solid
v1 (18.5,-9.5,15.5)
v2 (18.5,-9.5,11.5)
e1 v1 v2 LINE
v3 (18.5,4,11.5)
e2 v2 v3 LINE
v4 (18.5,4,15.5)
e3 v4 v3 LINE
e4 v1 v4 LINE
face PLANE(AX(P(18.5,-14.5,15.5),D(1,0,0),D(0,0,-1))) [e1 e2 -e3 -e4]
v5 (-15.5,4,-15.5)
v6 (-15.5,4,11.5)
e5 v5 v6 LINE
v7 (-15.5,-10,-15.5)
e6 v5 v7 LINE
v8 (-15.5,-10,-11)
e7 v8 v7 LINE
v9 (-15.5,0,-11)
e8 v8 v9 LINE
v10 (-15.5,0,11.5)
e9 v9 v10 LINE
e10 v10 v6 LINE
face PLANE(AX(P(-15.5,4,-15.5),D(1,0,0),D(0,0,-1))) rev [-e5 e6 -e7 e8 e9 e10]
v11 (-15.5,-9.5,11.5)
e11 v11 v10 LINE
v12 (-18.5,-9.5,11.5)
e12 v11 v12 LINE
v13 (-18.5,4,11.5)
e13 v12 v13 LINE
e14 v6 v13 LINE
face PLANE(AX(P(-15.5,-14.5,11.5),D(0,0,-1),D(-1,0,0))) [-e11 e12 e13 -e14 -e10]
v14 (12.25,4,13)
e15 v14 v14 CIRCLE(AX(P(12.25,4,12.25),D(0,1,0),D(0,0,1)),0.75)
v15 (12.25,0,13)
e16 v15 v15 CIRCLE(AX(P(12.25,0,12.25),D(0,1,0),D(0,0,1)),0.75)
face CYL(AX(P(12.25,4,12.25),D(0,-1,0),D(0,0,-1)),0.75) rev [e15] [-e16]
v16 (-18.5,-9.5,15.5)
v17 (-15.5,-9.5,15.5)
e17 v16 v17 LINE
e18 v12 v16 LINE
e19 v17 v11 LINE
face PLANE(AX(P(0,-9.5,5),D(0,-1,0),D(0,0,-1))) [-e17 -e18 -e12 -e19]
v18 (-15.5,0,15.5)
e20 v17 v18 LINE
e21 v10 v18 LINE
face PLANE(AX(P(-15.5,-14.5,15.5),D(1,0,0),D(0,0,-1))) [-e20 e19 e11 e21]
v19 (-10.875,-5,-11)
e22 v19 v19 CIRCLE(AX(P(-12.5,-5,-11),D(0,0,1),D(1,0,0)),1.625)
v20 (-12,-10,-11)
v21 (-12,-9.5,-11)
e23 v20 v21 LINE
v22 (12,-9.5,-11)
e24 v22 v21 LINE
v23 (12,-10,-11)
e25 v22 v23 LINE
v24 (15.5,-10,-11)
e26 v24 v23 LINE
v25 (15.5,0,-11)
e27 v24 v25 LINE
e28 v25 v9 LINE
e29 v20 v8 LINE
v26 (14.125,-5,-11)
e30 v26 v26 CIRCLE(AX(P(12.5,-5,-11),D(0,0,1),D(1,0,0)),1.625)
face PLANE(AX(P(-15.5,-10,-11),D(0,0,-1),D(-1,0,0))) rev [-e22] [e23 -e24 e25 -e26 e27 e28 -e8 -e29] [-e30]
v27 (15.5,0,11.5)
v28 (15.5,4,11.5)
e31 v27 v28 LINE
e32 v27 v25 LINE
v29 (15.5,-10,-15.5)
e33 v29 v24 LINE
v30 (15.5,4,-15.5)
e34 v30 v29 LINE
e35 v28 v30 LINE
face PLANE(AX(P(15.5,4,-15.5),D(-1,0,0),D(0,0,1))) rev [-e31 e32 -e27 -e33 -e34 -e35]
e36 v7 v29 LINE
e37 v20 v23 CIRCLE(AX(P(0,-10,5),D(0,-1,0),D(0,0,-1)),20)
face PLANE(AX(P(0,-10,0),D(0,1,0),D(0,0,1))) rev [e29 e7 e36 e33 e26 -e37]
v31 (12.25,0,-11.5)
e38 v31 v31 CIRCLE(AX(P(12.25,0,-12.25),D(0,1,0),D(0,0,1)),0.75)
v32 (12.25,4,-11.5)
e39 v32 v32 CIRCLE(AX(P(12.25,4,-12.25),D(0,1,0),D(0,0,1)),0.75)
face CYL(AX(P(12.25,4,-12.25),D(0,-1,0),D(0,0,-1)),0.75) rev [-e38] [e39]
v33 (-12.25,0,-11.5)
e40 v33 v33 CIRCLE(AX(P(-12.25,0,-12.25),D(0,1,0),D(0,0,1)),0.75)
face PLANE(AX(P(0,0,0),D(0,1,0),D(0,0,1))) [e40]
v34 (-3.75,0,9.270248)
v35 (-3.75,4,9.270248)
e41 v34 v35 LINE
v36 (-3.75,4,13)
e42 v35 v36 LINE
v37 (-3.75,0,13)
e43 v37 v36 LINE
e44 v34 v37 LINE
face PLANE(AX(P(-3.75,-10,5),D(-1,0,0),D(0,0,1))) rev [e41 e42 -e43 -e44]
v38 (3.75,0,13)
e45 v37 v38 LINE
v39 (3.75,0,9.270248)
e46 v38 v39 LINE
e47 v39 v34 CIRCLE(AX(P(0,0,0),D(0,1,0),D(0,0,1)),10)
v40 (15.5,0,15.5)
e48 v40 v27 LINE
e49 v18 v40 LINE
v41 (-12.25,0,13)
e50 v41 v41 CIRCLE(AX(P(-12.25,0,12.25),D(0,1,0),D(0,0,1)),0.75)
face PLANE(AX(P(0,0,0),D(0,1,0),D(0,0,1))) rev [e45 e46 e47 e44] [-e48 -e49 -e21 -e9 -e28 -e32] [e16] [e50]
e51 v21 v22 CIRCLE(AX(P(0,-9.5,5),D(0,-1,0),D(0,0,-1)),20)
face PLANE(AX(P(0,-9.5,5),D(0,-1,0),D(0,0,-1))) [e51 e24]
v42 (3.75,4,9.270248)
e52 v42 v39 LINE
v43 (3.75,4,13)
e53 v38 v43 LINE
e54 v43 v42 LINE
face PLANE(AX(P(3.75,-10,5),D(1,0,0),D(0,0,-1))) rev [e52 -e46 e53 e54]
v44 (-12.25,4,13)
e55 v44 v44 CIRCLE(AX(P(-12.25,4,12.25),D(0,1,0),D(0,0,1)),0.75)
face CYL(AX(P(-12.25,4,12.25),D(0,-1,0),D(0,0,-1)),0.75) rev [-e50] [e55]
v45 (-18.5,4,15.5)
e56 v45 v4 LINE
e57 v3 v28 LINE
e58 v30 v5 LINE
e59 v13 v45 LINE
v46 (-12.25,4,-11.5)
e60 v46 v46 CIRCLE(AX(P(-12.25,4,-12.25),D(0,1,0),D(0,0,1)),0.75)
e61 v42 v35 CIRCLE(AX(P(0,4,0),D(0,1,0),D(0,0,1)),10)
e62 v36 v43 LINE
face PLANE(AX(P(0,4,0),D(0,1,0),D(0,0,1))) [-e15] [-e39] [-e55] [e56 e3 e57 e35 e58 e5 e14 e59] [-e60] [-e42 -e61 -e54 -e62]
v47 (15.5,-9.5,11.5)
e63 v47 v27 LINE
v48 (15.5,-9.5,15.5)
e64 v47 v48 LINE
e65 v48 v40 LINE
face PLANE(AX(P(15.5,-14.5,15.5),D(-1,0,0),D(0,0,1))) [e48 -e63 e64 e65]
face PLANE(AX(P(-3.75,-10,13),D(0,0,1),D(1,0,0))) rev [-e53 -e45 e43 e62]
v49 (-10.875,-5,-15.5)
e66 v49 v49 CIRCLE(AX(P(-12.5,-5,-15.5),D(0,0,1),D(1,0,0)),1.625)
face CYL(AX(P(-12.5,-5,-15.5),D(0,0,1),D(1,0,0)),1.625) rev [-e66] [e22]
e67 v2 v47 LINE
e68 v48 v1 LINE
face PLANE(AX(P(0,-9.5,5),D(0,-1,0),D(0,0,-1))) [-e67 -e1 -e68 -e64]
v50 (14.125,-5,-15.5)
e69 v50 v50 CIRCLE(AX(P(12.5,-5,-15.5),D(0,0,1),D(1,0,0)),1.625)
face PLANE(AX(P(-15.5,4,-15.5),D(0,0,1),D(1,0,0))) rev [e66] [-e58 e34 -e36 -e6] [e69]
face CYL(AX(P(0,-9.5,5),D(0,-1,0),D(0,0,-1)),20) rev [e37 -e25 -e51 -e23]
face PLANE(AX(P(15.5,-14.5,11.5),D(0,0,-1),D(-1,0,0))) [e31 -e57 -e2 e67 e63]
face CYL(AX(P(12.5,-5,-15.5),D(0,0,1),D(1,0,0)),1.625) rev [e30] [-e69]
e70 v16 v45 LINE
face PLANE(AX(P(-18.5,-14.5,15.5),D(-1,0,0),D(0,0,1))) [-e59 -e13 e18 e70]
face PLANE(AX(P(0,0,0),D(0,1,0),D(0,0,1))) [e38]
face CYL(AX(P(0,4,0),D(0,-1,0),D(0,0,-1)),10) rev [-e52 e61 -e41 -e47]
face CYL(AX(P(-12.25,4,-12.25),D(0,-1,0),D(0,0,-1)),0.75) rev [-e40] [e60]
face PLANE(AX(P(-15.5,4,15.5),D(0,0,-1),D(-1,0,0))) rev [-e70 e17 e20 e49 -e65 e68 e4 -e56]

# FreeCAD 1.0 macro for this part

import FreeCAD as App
import Part
import Sketcher
from FreeCAD import Vector
Q = App.Units.Quantity


def add_polygon(sketch, points):
    """Adds a closed chain of lines whose ends are joined by coincident constraints."""
    first, n = sketch.GeometryCount, len(points)
    for a, b in zip(points, points[1:] + points[:1]):
        sketch.addGeometry(Part.LineSegment(App.Vector(*a, 0), App.Vector(*b, 0)), False)
    for i in range(n):
        sketch.addConstraint(Sketcher.Constraint("Coincident", first + i, 2, first + (i + 1) % n, 1))

doc = App.newDocument("Part")
params = doc.addObject("Spreadsheet::Sheet", "Params")
for row, (alias, value) in enumerate([
    ("sketch1_diameter", "20 mm"),
    ("sketch1_diameter2", "1.5 mm"),
    ("sketch1_width", "31 mm"),
    ("pad1_length", "4 mm"),
    ("sketch2_width", "31 mm"),
    ("sketch2_height", "4.5 mm"),
    ("pad2_length", "10 mm"),
    ("sketch3_diameter", "3.25 mm"),
    ("sketch4_height", "8 mm"),
    ("sketch4_width", "7.5 mm"),
    ("sketch5_diameter", "40 mm"),
    ("pocket3_length", "0.5 mm"),
    ("sketch6_width", "3 mm"),
    ("sketch6_height", "4 mm"),
    ("pad3_length", "13.5 mm"),
], start=1):
    params.set(f"A{row}", alias)
    params.set(f"B{row}", "=" + value)
    params.setAlias(f"B{row}", alias)

body = doc.addObject("PartDesign::Body", "Body")

sketch1 = doc.addObject("Sketcher::SketchObject", "Sketch")
body.addObject(sketch1)
sketch1.AttachmentSupport = (doc.XZ_Plane, [""])
sketch1.MapMode = "FlatFace"
add_polygon(sketch1, [(-15.5, -15.5), (-15.5, 15.5), (15.5, 15.5), (15.5, -15.5)])
sketch1.addGeometry(Part.Circle(Vector(-12.25, 12.25, 0), Vector(0, 0, 1), 0.75), False)
sketch1.addGeometry(Part.Circle(Vector(12.25, 12.25, 0), Vector(0, 0, 1), 0.75), False)
sketch1.addGeometry(Part.Circle(Vector(-12.25, -12.25, 0), Vector(0, 0, 1), 0.75), False)
sketch1.addGeometry(Part.Circle(Vector(0, 0, 0), Vector(0, 0, 1), 10), False)
sketch1.addGeometry(Part.Circle(Vector(12.25, -12.25, 0), Vector(0, 0, 1), 0.75), False)
sketch1.addConstraint([
    Sketcher.Constraint("Vertical", 0),
    Sketcher.Constraint("Horizontal", 1),
    Sketcher.Constraint("Vertical", 2),
    Sketcher.Constraint("Horizontal", 3),
    Sketcher.Constraint("Coincident", 7, 3, -1, 1),
    Sketcher.Constraint("Equal", 4, 5),
    Sketcher.Constraint("Equal", 5, 6),
    Sketcher.Constraint("Equal", 6, 8),
    Sketcher.Constraint("Symmetric", 5, 3, 6, 3, -1, 1),
    Sketcher.Constraint("Symmetric", 4, 3, 8, 3, -1, 1),
    Sketcher.Constraint("Symmetric", 0, 2, 2, 2, -1, 1),
    Sketcher.Constraint("Symmetric", 4, 3, 5, 3, -2),
    Sketcher.Constraint("Equal", 3, 0),
    Sketcher.Constraint("Diameter", 7, Q("20 mm")),
    Sketcher.Constraint("Diameter", 4, Q("1.5 mm")),
    Sketcher.Constraint("DistanceX", 1, 1, 1, 2, Q("31 mm")),
    Sketcher.Constraint("DistanceX", 4, 3, 5, 3, Q("24.5 mm")),
    Sketcher.Constraint("DistanceY", 6, 3, 4, 3, Q("24.5 mm")),
])
sketch1.setExpression("Constraints[17]", "Params.sketch1_diameter")
sketch1.setExpression("Constraints[18]", "Params.sketch1_diameter2")
sketch1.setExpression("Constraints[19]", "Params.sketch1_width")
pad1 = doc.addObject("PartDesign::Pad", "Pad")
body.addObject(pad1)
pad1.Profile = sketch1
pad1.setExpression("Length", "Params.pad1_length")
pad1.Reversed = True

sketch2 = doc.addObject("Sketcher::SketchObject", "Sketch001")
body.addObject(sketch2)
sketch2.AttachmentSupport = (doc.XZ_Plane, [""])
sketch2.MapMode = "FlatFace"
add_polygon(sketch2, [(-15.5, -11), (-15.5, -15.5), (15.5, -15.5), (15.5, -11)])
sketch2.addConstraint([
    Sketcher.Constraint("Vertical", 0),
    Sketcher.Constraint("Horizontal", 1),
    Sketcher.Constraint("Vertical", 2),
    Sketcher.Constraint("Horizontal", 3),
    Sketcher.Constraint("DistanceX", 1, 1, 1, 2, Q("31 mm")),
    Sketcher.Constraint("DistanceY", 0, 2, 0, 1, Q("4.5 mm")),
    Sketcher.Constraint("DistanceY", 2, 2, -1, 1, Q("11 mm")),
    Sketcher.Constraint("DistanceX", 0, 2, -1, 1, Q("15.5 mm")),
])
sketch2.setExpression("Constraints[8]", "Params.sketch2_width")
sketch2.setExpression("Constraints[9]", "Params.sketch2_height")
pad2 = doc.addObject("PartDesign::Pad", "Pad001")
body.addObject(pad2)
pad2.Profile = sketch2
pad2.setExpression("Length", "Params.pad2_length")

sketch3 = doc.addObject("Sketcher::SketchObject", "Sketch002")
body.addObject(sketch3)
sketch3.AttachmentSupport = (doc.XY_Plane, [""])
sketch3.MapMode = "FlatFace"
sketch3.AttachmentOffset = App.Placement(Vector(0, 0, -11), App.Rotation())
sketch3.addGeometry([
    Part.Circle(Vector(-12.5, -5, 0), Vector(0, 0, 1), 1.625),
    Part.Circle(Vector(12.5, -5, 0), Vector(0, 0, 1), 1.625),
], False)
sketch3.addConstraint([
    Sketcher.Constraint("Equal", 0, 1),
    Sketcher.Constraint("Symmetric", 0, 3, 1, 3, -2),
    Sketcher.Constraint("Diameter", 0, Q("3.25 mm")),
    Sketcher.Constraint("DistanceY", 0, 3, -1, 1, Q("5 mm")),
    Sketcher.Constraint("DistanceX", 0, 3, 1, 3, Q("25 mm")),
])
sketch3.setExpression("Constraints[2]", "Params.sketch3_diameter")
pocket1 = doc.addObject("PartDesign::Pocket", "Pocket")
body.addObject(pocket1)
pocket1.Profile = sketch3
pocket1.Type = "ThroughAll"

sketch4 = doc.addObject("Sketcher::SketchObject", "Sketch003")
body.addObject(sketch4)
sketch4.AttachmentSupport = (doc.XZ_Plane, [""])
sketch4.MapMode = "FlatFace"
sketch4.AttachmentOffset = App.Placement(Vector(0, 0, -4), App.Rotation())
add_polygon(sketch4, [(-3.75, 5), (-3.75, 13), (3.75, 13), (3.75, 5)])
sketch4.addConstraint([
    Sketcher.Constraint("Vertical", 0),
    Sketcher.Constraint("Horizontal", 1),
    Sketcher.Constraint("Vertical", 2),
    Sketcher.Constraint("Horizontal", 3),
    Sketcher.Constraint("DistanceY", 0, 1, 0, 2, Q("8 mm")),
    Sketcher.Constraint("DistanceX", 1, 1, 1, 2, Q("7.5 mm")),
    Sketcher.Constraint("DistanceY", -1, 1, 0, 2, Q("13 mm")),
    Sketcher.Constraint("DistanceX", 0, 2, -1, 1, Q("3.75 mm")),
])
sketch4.setExpression("Constraints[8]", "Params.sketch4_height")
sketch4.setExpression("Constraints[9]", "Params.sketch4_width")
pocket2 = doc.addObject("PartDesign::Pocket", "Pocket001")
body.addObject(pocket2)
pocket2.Profile = sketch4
pocket2.Type = "ThroughAll"
pocket2.Reversed = True

sketch5 = doc.addObject("Sketcher::SketchObject", "Sketch004")
body.addObject(sketch5)
sketch5.AttachmentSupport = (doc.XZ_Plane, [""])
sketch5.MapMode = "FlatFace"
sketch5.AttachmentOffset = App.Placement(Vector(0, 0, 10), App.Rotation())
sketch5.addGeometry(Part.Circle(Vector(0, 5, 0), Vector(0, 0, 1), 20), False)
sketch5.addConstraint([
    Sketcher.Constraint("PointOnObject", 0, 3, -2),
    Sketcher.Constraint("Diameter", 0, Q("40 mm")),
    Sketcher.Constraint("DistanceY", -1, 1, 0, 3, Q("5 mm")),
])
sketch5.setExpression("Constraints[1]", "Params.sketch5_diameter")
pocket3 = doc.addObject("PartDesign::Pocket", "Pocket002")
body.addObject(pocket3)
pocket3.Profile = sketch5
pocket3.setExpression("Length", "Params.pocket3_length")

sketch6 = doc.addObject("Sketcher::SketchObject", "Sketch005")
body.addObject(sketch6)
sketch6.AttachmentSupport = (doc.XZ_Plane, [""])
sketch6.MapMode = "FlatFace"
sketch6.AttachmentOffset = App.Placement(Vector(0, 0, -4), App.Rotation())
add_polygon(sketch6, [(-18.5, 11.5), (-18.5, 15.5), (-15.5, 15.5), (-15.5, 11.5)])
add_polygon(sketch6, [(15.5, 11.5), (15.5, 15.5), (18.5, 15.5), (18.5, 11.5)])
sketch6.addConstraint([
    Sketcher.Constraint("Vertical", 0),
    Sketcher.Constraint("Horizontal", 1),
    Sketcher.Constraint("Vertical", 2),
    Sketcher.Constraint("Horizontal", 3),
    Sketcher.Constraint("Vertical", 4),
    Sketcher.Constraint("Horizontal", 5),
    Sketcher.Constraint("Vertical", 6),
    Sketcher.Constraint("Horizontal", 7),
    Sketcher.Constraint("Symmetric", 1, 2, 4, 2, -2),
    Sketcher.Constraint("Symmetric", 3, 2, 6, 2, -2),
    Sketcher.Constraint("DistanceX", 1, 1, 1, 2, Q("3 mm")),
    Sketcher.Constraint("DistanceY", 0, 1, 0, 2, Q("4 mm")),
    Sketcher.Constraint("DistanceX", 1, 2, 4, 2, Q("31 mm")),
    Sketcher.Constraint("DistanceY", -1, 1, 0, 2, Q("15.5 mm")),
])
sketch6.setExpression("Constraints[18]", "Params.sketch6_width")
sketch6.setExpression("Constraints[19]", "Params.sketch6_height")
pad3 = doc.addObject("PartDesign::Pad", "Pad002")
body.addObject(pad3)
pad3.Profile = sketch6
pad3.setExpression("Length", "Params.pad3_length")

doc.recompute()
